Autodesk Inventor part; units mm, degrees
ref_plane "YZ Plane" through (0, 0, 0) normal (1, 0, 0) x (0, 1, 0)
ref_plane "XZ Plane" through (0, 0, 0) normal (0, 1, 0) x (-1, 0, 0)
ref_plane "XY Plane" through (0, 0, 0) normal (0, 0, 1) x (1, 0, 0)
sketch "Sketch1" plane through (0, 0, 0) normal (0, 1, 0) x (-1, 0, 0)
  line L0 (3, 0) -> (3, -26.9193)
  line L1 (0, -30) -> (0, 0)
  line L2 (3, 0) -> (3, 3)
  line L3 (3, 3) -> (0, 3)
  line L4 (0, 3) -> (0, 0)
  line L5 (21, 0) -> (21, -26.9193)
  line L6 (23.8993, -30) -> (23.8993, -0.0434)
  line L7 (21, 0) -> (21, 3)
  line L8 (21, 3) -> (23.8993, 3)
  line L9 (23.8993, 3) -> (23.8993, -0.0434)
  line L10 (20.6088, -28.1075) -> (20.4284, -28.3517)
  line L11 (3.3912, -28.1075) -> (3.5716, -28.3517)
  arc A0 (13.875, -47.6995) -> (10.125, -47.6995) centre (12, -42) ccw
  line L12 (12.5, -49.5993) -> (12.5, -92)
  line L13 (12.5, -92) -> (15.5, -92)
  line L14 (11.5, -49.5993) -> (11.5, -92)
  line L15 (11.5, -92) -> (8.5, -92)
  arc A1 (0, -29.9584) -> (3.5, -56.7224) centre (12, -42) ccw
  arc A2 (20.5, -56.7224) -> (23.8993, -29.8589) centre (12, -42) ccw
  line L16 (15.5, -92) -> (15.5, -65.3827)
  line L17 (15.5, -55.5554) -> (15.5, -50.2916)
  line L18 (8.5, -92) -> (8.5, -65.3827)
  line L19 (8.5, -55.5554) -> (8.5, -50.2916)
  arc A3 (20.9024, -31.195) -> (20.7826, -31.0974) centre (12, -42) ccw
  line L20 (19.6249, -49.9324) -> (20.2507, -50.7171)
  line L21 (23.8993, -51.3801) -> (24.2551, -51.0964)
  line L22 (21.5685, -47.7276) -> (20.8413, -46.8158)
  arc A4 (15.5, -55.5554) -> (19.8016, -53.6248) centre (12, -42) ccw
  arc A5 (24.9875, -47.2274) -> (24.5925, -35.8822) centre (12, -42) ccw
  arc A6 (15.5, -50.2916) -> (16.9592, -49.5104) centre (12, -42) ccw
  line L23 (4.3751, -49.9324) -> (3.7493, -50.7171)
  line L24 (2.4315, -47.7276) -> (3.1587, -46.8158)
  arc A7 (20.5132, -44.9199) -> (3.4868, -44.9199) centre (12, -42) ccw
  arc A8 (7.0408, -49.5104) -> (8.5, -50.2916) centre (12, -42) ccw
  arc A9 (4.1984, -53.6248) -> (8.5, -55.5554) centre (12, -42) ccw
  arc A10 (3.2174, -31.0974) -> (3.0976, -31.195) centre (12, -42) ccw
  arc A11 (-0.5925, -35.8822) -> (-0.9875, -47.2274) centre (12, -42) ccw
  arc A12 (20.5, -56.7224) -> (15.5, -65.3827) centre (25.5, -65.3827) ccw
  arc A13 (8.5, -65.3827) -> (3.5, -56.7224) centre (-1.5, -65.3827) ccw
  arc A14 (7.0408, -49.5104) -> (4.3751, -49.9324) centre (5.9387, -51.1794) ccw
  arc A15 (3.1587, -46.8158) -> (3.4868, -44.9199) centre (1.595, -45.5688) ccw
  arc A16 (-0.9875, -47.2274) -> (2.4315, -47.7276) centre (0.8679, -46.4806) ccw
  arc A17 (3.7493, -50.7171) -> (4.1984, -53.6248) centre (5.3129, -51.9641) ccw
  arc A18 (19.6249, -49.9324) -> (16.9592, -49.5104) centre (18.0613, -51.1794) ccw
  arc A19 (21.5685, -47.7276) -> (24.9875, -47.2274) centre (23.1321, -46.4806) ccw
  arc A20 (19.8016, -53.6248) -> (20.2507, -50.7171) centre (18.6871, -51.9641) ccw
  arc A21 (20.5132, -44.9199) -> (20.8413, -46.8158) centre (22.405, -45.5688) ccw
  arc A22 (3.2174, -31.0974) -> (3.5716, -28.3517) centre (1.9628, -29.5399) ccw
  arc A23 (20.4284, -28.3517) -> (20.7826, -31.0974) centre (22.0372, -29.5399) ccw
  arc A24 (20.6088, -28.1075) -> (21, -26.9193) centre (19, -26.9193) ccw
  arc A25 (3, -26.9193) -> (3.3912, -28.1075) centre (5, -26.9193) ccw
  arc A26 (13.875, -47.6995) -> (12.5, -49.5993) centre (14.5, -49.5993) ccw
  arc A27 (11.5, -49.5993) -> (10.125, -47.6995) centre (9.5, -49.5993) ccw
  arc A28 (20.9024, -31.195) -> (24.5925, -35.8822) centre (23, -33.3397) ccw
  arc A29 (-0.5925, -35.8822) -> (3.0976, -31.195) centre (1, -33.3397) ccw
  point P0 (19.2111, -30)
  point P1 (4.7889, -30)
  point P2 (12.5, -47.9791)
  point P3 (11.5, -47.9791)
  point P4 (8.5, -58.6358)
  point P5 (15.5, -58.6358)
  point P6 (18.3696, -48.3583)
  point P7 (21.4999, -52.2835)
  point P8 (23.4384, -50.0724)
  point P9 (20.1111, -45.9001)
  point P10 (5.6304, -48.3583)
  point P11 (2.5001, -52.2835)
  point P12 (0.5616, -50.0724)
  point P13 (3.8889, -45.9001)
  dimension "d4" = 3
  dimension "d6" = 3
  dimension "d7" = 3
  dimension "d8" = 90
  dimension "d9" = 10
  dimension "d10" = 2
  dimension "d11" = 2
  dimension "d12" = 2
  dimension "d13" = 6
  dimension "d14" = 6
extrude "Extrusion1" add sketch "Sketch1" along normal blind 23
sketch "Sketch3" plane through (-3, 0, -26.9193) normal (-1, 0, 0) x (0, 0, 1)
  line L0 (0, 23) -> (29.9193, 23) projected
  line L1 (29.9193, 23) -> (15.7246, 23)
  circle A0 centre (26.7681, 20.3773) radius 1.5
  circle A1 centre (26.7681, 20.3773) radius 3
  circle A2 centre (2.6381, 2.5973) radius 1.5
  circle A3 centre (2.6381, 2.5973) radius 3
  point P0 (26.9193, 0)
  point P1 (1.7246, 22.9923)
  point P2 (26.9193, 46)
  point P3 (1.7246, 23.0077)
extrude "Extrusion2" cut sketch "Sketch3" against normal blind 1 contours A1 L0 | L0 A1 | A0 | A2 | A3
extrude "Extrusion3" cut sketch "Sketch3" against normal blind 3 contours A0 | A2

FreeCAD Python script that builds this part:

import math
import FreeCAD as App
import Part
import Sketcher

doc = App.newDocument("Part")
params = doc.addObject("Spreadsheet::Sheet", "Params")
for row, (alias, value) in enumerate([
    ("sketch1_radius", "10 mm"),
    ("sketch1_radius2", "2 mm"),
    ("sketch1_radius3", "6 mm"),
    ("sketch1_radius4", "3 mm"),
    ("sketch1_width", "3 mm"),
    ("pad1_length", "23 mm"),
    ("sketch2_diameter", "6 mm"),
    ("pocket1_length", "1 mm"),
    ("sketch3_diameter", "3 mm"),
    ("pocket2_length", "3 mm"),
], start=1):
    params.set(f"A{row}", alias)
    params.set(f"B{row}", "=" + value)
    params.setAlias(f"B{row}", alias)

body = doc.addObject("PartDesign::Body", "Body")

# Sketch on XZ plane
sketch1 = body.newObject("Sketcher::SketchObject", "Sketch")
sketch1.AttachmentSupport = (doc.getObject("XZ_Plane"), [""])
sketch1.MapMode = "FlatFace"
sketch1.addGeometry(Part.LineSegment(App.Vector(-3, -26.92, 0), App.Vector(-3, 3, 0)), False)
sketch1.addGeometry(Part.LineSegment(App.Vector(-3, 3, 0), App.Vector(0, 3, 0)), False)
sketch1.addGeometry(Part.LineSegment(App.Vector(0, 3, 0), App.Vector(0, -29.96, 0)), False)
sketch1.addGeometry(Part.ArcOfCircle(Part.Circle(App.Vector(-12, -42, 0), App.Vector(0, 0, 1), 17), math.radians(-60), math.radians(45)), False)
sketch1.addGeometry(Part.ArcOfCircle(Part.Circle(App.Vector(1.5, -65.38, 0), App.Vector(0, 0, 1), 10), math.radians(120), math.radians(180)), False)
sketch1.addGeometry(Part.LineSegment(App.Vector(-8.5, -65.38, 0), App.Vector(-8.5, -92, 0)), False)
sketch1.addGeometry(Part.LineSegment(App.Vector(-8.5, -92, 0), App.Vector(-11.5, -92, 0)), False)
sketch1.addGeometry(Part.LineSegment(App.Vector(-11.5, -92, 0), App.Vector(-11.5, -49.6, 0)), False)
sketch1.addGeometry(Part.ArcOfCircle(Part.Circle(App.Vector(-9.5, -49.6, 0), App.Vector(0, 0, 1), 2), math.radians(108), math.radians(180)), False)
sketch1.addGeometry(Part.ArcOfCircle(Part.Circle(App.Vector(-12, -42, 0), App.Vector(0, 0, 1), 6), math.radians(-72), math.radians(252)), False)
sketch1.addGeometry(Part.ArcOfCircle(Part.Circle(App.Vector(-14.5, -49.6, 0), App.Vector(0, 0, 1), 2), math.radians(0), math.radians(72)), False)
sketch1.addGeometry(Part.LineSegment(App.Vector(-12.5, -49.6, 0), App.Vector(-12.5, -92, 0)), False)
sketch1.addGeometry(Part.LineSegment(App.Vector(-12.5, -92, 0), App.Vector(-15.5, -92, 0)), False)
sketch1.addGeometry(Part.LineSegment(App.Vector(-15.5, -92, 0), App.Vector(-15.5, -65.38, 0)), False)
sketch1.addGeometry(Part.ArcOfCircle(Part.Circle(App.Vector(-25.5, -65.38, 0), App.Vector(0, 0, 1), 10), math.radians(0), math.radians(60)), False)
sketch1.addGeometry(Part.ArcOfCircle(Part.Circle(App.Vector(-12, -42, 0), App.Vector(0, 0, 1), 17), math.radians(134), math.radians(240)), False)
sketch1.addGeometry(Part.LineSegment(App.Vector(-23.9, -29.86, 0), App.Vector(-23.9, 3, 0)), False)
sketch1.addGeometry(Part.LineSegment(App.Vector(-23.9, 3, 0), App.Vector(-21, 3, 0)), False)
sketch1.addGeometry(Part.LineSegment(App.Vector(-21, 3, 0), App.Vector(-21, -26.92, 0)), False)
sketch1.addGeometry(Part.ArcOfCircle(Part.Circle(App.Vector(-19, -26.92, 0), App.Vector(0, 0, 1), 2), math.radians(180), math.radians(216)), False)
sketch1.addGeometry(Part.LineSegment(App.Vector(-20.61, -28.11, 0), App.Vector(-20.43, -28.35, 0)), False)
sketch1.addGeometry(Part.ArcOfCircle(Part.Circle(App.Vector(-22.04, -29.54, 0), App.Vector(0, 0, 1), 2), math.radians(-51), math.radians(36)), False)
sketch1.addGeometry(Part.ArcOfCircle(Part.Circle(App.Vector(-12, -42, 0), App.Vector(0, 0, 1), 14), math.radians(128.85), math.radians(129.49)), False)
sketch1.addGeometry(Part.ArcOfCircle(Part.Circle(App.Vector(-23, -33.34, 0), App.Vector(0, 0, 1), 3), math.radians(-122), math.radians(46)), False)
sketch1.addGeometry(Part.ArcOfCircle(Part.Circle(App.Vector(-12, -42, 0), App.Vector(0, 0, 1), 14), math.radians(154), math.radians(202)), False)
sketch1.addGeometry(Part.ArcOfCircle(Part.Circle(App.Vector(-23.13, -46.48, 0), App.Vector(0, 0, 1), 2), math.radians(-158), math.radians(-39)), False)
sketch1.addGeometry(Part.LineSegment(App.Vector(-21.57, -47.73, 0), App.Vector(-20.84, -46.82, 0)), False)
sketch1.addGeometry(Part.ArcOfCircle(Part.Circle(App.Vector(-22.41, -45.57, 0), App.Vector(0, 0, 1), 2), math.radians(-39), math.radians(19)), False)
sketch1.addGeometry(Part.ArcOfCircle(Part.Circle(App.Vector(-12, -42, 0), App.Vector(0, 0, 1), 9), math.radians(-19), math.radians(199)), False)
sketch1.addGeometry(Part.ArcOfCircle(Part.Circle(App.Vector(-1.59, -45.57, 0), App.Vector(0, 0, 1), 2), math.radians(161), math.radians(219)), False)
sketch1.addGeometry(Part.LineSegment(App.Vector(-3.16, -46.82, 0), App.Vector(-2.43, -47.73, 0)), False)
sketch1.addGeometry(Part.ArcOfCircle(Part.Circle(App.Vector(-0.87, -46.48, 0), App.Vector(0, 0, 1), 2), math.radians(-141), math.radians(-22)), False)
sketch1.addGeometry(Part.ArcOfCircle(Part.Circle(App.Vector(-12, -42, 0), App.Vector(0, 0, 1), 14), math.radians(-22), math.radians(26)), False)
sketch1.addGeometry(Part.ArcOfCircle(Part.Circle(App.Vector(-1, -33.34, 0), App.Vector(0, 0, 1), 3), math.radians(134), math.radians(302)), False)
sketch1.addGeometry(Part.ArcOfCircle(Part.Circle(App.Vector(-12, -42, 0), App.Vector(0, 0, 1), 14), math.radians(50.51), math.radians(51.15)), False)
sketch1.addGeometry(Part.ArcOfCircle(Part.Circle(App.Vector(-1.96, -29.54, 0), App.Vector(0, 0, 1), 2), math.radians(144), math.radians(231)), False)
sketch1.addGeometry(Part.LineSegment(App.Vector(-3.57, -28.35, 0), App.Vector(-3.39, -28.11, 0)), False)
sketch1.addGeometry(Part.ArcOfCircle(Part.Circle(App.Vector(-5, -26.92, 0), App.Vector(0, 0, 1), 2), math.radians(-36), math.radians(0)), False)
sketch1.addGeometry(Part.LineSegment(App.Vector(-8.5, -50.29, 0), App.Vector(-8.5, -55.56, 0)), False)
sketch1.addGeometry(Part.ArcOfCircle(Part.Circle(App.Vector(-12, -42, 0), App.Vector(0, 0, 1), 14), math.radians(-75.53), math.radians(-56.13)), False)
sketch1.addGeometry(Part.ArcOfCircle(Part.Circle(App.Vector(-5.31, -51.96, 0), App.Vector(0, 0, 1), 2), math.radians(-56), math.radians(39)), False)
sketch1.addGeometry(Part.LineSegment(App.Vector(-3.75, -50.72, 0), App.Vector(-4.38, -49.93, 0)), False)
sketch1.addGeometry(Part.ArcOfCircle(Part.Circle(App.Vector(-5.94, -51.18, 0), App.Vector(0, 0, 1), 2), math.radians(39), math.radians(123)), False)
sketch1.addGeometry(Part.ArcOfCircle(Part.Circle(App.Vector(-12, -42, 0), App.Vector(0, 0, 1), 9.01), math.radians(-67.11), math.radians(-56.56)), False)
sketch1.addGeometry(Part.ArcOfCircle(Part.Circle(App.Vector(-12, -42, 0), App.Vector(0, 0, 1), 14), math.radians(-123.86), math.radians(-104.48)), False)
sketch1.addGeometry(Part.LineSegment(App.Vector(-15.5, -55.56, 0), App.Vector(-15.5, -50.29, 0)), False)
sketch1.addGeometry(Part.ArcOfCircle(Part.Circle(App.Vector(-12, -42.01, 0), App.Vector(0, 0, 1), 8.99), math.radians(-123.44), math.radians(-112.88)), False)
sketch1.addGeometry(Part.ArcOfCircle(Part.Circle(App.Vector(-18.06, -51.18, 0), App.Vector(0, 0, 1), 2), math.radians(57), math.radians(141)), False)
sketch1.addGeometry(Part.LineSegment(App.Vector(-19.62, -49.93, 0), App.Vector(-20.25, -50.72, 0)), False)
sketch1.addGeometry(Part.ArcOfCircle(Part.Circle(App.Vector(-18.69, -51.96, 0), App.Vector(0, 0, 1), 2), math.radians(141), math.radians(236)), False)
sketch1.addConstraint(Sketcher.Constraint("Coincident", 0, 2, 1, 1))
sketch1.addConstraint(Sketcher.Constraint("Coincident", 1, 2, 2, 1))
sketch1.addConstraint(Sketcher.Constraint("Coincident", 2, 2, 3, 2))
sketch1.addConstraint(Sketcher.Constraint("Tangent", 3, 1, 4, 1))
sketch1.addConstraint(Sketcher.Constraint("Tangent", 4, 2, 5, 1))
sketch1.addConstraint(Sketcher.Constraint("Coincident", 5, 2, 6, 1))
sketch1.addConstraint(Sketcher.Constraint("Coincident", 6, 2, 7, 1))
sketch1.addConstraint(Sketcher.Constraint("Tangent", 7, 2, 8, 2))
sketch1.addConstraint(Sketcher.Constraint("Tangent", 8, 1, 9, 1))
sketch1.addConstraint(Sketcher.Constraint("Tangent", 9, 2, 10, 2))
sketch1.addConstraint(Sketcher.Constraint("Tangent", 10, 1, 11, 1))
sketch1.addConstraint(Sketcher.Constraint("Coincident", 11, 2, 12, 1))
sketch1.addConstraint(Sketcher.Constraint("Coincident", 12, 2, 13, 1))
sketch1.addConstraint(Sketcher.Constraint("Tangent", 13, 2, 14, 1))
sketch1.addConstraint(Sketcher.Constraint("Tangent", 14, 2, 15, 2))
sketch1.addConstraint(Sketcher.Constraint("Coincident", 15, 1, 16, 1))
sketch1.addConstraint(Sketcher.Constraint("Coincident", 16, 2, 17, 1))
sketch1.addConstraint(Sketcher.Constraint("Coincident", 17, 2, 18, 1))
sketch1.addConstraint(Sketcher.Constraint("Tangent", 18, 2, 19, 1))
sketch1.addConstraint(Sketcher.Constraint("Tangent", 19, 2, 20, 1))
sketch1.addConstraint(Sketcher.Constraint("Tangent", 20, 2, 21, 2))
sketch1.addConstraint(Sketcher.Constraint("Tangent", 21, 1, 22, 1))
sketch1.addConstraint(Sketcher.Constraint("Coincident", 22, 2, 23, 2))
sketch1.addConstraint(Sketcher.Constraint("Coincident", 23, 1, 24, 1))
sketch1.addConstraint(Sketcher.Constraint("Tangent", 24, 2, 25, 1))
sketch1.addConstraint(Sketcher.Constraint("Tangent", 25, 2, 26, 1))
sketch1.addConstraint(Sketcher.Constraint("Tangent", 26, 2, 27, 1))
sketch1.addConstraint(Sketcher.Constraint("Tangent", 27, 2, 28, 2))
sketch1.addConstraint(Sketcher.Constraint("Tangent", 28, 1, 29, 1))
sketch1.addConstraint(Sketcher.Constraint("Tangent", 29, 2, 30, 1))
sketch1.addConstraint(Sketcher.Constraint("Tangent", 30, 2, 31, 1))
sketch1.addConstraint(Sketcher.Constraint("Tangent", 31, 2, 32, 1))
sketch1.addConstraint(Sketcher.Constraint("Coincident", 32, 2, 33, 2))
sketch1.addConstraint(Sketcher.Constraint("Coincident", 33, 1, 34, 1))
sketch1.addConstraint(Sketcher.Constraint("Tangent", 34, 2, 35, 2))
sketch1.addConstraint(Sketcher.Constraint("Tangent", 35, 1, 36, 1))
sketch1.addConstraint(Sketcher.Constraint("Tangent", 36, 2, 37, 1))
sketch1.addConstraint(Sketcher.Constraint("Tangent", 37, 2, 0, 1))
sketch1.addConstraint(Sketcher.Constraint("Coincident", 38, 2, 39, 1))
sketch1.addConstraint(Sketcher.Constraint("Tangent", 39, 2, 40, 1))
sketch1.addConstraint(Sketcher.Constraint("Tangent", 40, 2, 41, 1))
sketch1.addConstraint(Sketcher.Constraint("Tangent", 41, 2, 42, 1))
sketch1.addConstraint(Sketcher.Constraint("Tangent", 42, 2, 43, 2))
sketch1.addConstraint(Sketcher.Constraint("Coincident", 43, 1, 38, 1))
sketch1.addConstraint(Sketcher.Constraint("Coincident", 44, 2, 45, 1))
sketch1.addConstraint(Sketcher.Constraint("Coincident", 45, 2, 46, 2))
sketch1.addConstraint(Sketcher.Constraint("Tangent", 46, 1, 47, 1))
sketch1.addConstraint(Sketcher.Constraint("Tangent", 47, 2, 48, 1))
sketch1.addConstraint(Sketcher.Constraint("Tangent", 48, 2, 49, 1))
sketch1.addConstraint(Sketcher.Constraint("Tangent", 49, 2, 44, 1))
sketch1.addConstraint(Sketcher.Constraint("Vertical", 0))
sketch1.addConstraint(Sketcher.Constraint("Horizontal", 1))
sketch1.addConstraint(Sketcher.Constraint("Vertical", 2))
sketch1.addConstraint(Sketcher.Constraint("Vertical", 5))
sketch1.addConstraint(Sketcher.Constraint("Horizontal", 6))
sketch1.addConstraint(Sketcher.Constraint("Vertical", 7))
sketch1.addConstraint(Sketcher.Constraint("Vertical", 11))
sketch1.addConstraint(Sketcher.Constraint("Horizontal", 12))
sketch1.addConstraint(Sketcher.Constraint("Vertical", 13))
sketch1.addConstraint(Sketcher.Constraint("Vertical", 16))
sketch1.addConstraint(Sketcher.Constraint("Horizontal", 17))
sketch1.addConstraint(Sketcher.Constraint("Vertical", 18))
sketch1.addConstraint(Sketcher.Constraint("Vertical", 38))
sketch1.addConstraint(Sketcher.Constraint("Vertical", 45))
sketch1.addConstraint(Sketcher.Constraint("Coincident", 9, 3, 3, 3))
sketch1.addConstraint(Sketcher.Constraint("Coincident", 15, 3, 3, 3))
sketch1.addConstraint(Sketcher.Constraint("Coincident", 24, 3, 3, 3))
sketch1.addConstraint(Sketcher.Constraint("Coincident", 28, 3, 3, 3))
sketch1.addConstraint(Sketcher.Constraint("Coincident", 32, 3, 3, 3))
sketch1.addConstraint(Sketcher.Constraint("Equal", 8, 10))
sketch1.addConstraint(Sketcher.Constraint("Equal", 4, 14))
sketch1.addConstraint(Sketcher.Constraint("Equal", 3, 15))
sketch1.addConstraint(Sketcher.Constraint("Equal", 10, 19))
sketch1.addConstraint(Sketcher.Constraint("Equal", 19, 21))
sketch1.addConstraint(Sketcher.Constraint("Equal", 21, 25))
sketch1.addConstraint(Sketcher.Constraint("Equal", 25, 27))
sketch1.addConstraint(Sketcher.Constraint("Equal", 27, 29))
sketch1.addConstraint(Sketcher.Constraint("Equal", 29, 31))
sketch1.addConstraint(Sketcher.Constraint("Equal", 24, 32))
sketch1.addConstraint(Sketcher.Constraint("Equal", 23, 33))
sketch1.addConstraint(Sketcher.Constraint("Equal", 31, 35))
sketch1.addConstraint(Sketcher.Constraint("Equal", 35, 37))
sketch1.addConstraint(Sketcher.Constraint("Equal", 37, 40))
sketch1.addConstraint(Sketcher.Constraint("Equal", 40, 42))
sketch1.addConstraint(Sketcher.Constraint("Equal", 42, 47))
sketch1.addConstraint(Sketcher.Constraint("Equal", 47, 49))
sketch1.addConstraint(Sketcher.Constraint("PointOnObject", 1, 2, -2))
sketch1.addConstraint(Sketcher.Constraint("Parallel", 30, 41))
sketch1.addConstraint(Sketcher.Constraint("Parallel", 26, 48))
sketch1.addConstraint(Sketcher.Constraint("Horizontal", 8, 3, 10, 3))
sketch1.addConstraint(Sketcher.Constraint("Horizontal", 4, 3, 14, 3))
sketch1.addConstraint(Sketcher.Constraint("Horizontal", 27, 3, 29, 3))
sketch1.addConstraint(Sketcher.Constraint("Horizontal", 25, 3, 31, 3))
sketch1.addConstraint(Sketcher.Constraint("Horizontal", 23, 3, 33, 3))
sketch1.addConstraint(Sketcher.Constraint("Horizontal", 21, 3, 35, 3))
sketch1.addConstraint(Sketcher.Constraint("Horizontal", 19, 3, 37, 3))
sketch1.addConstraint(Sketcher.Constraint("Horizontal", 42, 3, 47, 3))
sketch1.addConstraint(Sketcher.Constraint("Horizontal", 40, 3, 49, 3))
sketch1.addConstraint(Sketcher.Constraint("Horizontal", 6, 2, 11, 2))
sketch1.addConstraint(Sketcher.Constraint("Horizontal", 1, 2, 16, 2))
sketch1.addConstraint(Sketcher.Constraint("Horizontal", 23, 1, 32, 2))
sketch1.addConstraint(Sketcher.Constraint("Horizontal", 22, 2, 33, 1))
sketch1.addConstraint(Sketcher.Constraint("Horizontal", 21, 1, 34, 2))
sketch1.addConstraint(Sketcher.Constraint("Horizontal", 20, 2, 35, 1))
sketch1.addConstraint(Sketcher.Constraint("Horizontal", 38, 2, 44, 2))
sketch1.addConstraint(Sketcher.Constraint("Horizontal", 43, 1, 45, 2))
sketch1.addConstraint(Sketcher.Constraint("Horizontal", 42, 2, 46, 1))
sketch1.addConstraint(Sketcher.Constraint("Vertical", 22, 3, 34, 3))
sketch1.addConstraint(Sketcher.Constraint("Vertical", 5, 2, 38, 2))
sketch1.addConstraint(Sketcher.Constraint("Vertical", 13, 2, 44, 2))
sketch1.addConstraint(Sketcher.Constraint("Equal", 1, 6))
sketch1.addConstraint(Sketcher.Constraint("Radius", 4, 10.0))
sketch1.addConstraint(Sketcher.Constraint("Radius", 8, 2.0))
sketch1.addConstraint(Sketcher.Constraint("Radius", 9, 6.0))
sketch1.addConstraint(Sketcher.Constraint("Radius", 23, 3.0))
sketch1.addConstraint(Sketcher.Constraint("DistanceX", 1, 1, 1, 2, 3.0))
sketch1.addConstraint(Sketcher.Constraint("DistanceY", -1, 1, 0, 2, 3.0))
sketch1.addConstraint(Sketcher.Constraint("Radius", 3, 17.0))
sketch1.addConstraint(Sketcher.Constraint("Radius", 24, 14.0))
sketch1.addConstraint(Sketcher.Constraint("Radius", 28, 9.0))
sketch1.addConstraint(Sketcher.Constraint("DistanceX", 3, 3, -1, 1, 12.0))
sketch1.addConstraint(Sketcher.Constraint("DistanceY", 3, 3, -1, 1, 42.0))
sketch1.addConstraint(Sketcher.Constraint("DistanceX", 23, 3, -1, 1, 23.0))
sketch1.addConstraint(Sketcher.Constraint("DistanceY", 5, 2, -1, 1, 92.0))
sketch1.addConstraint(Sketcher.Constraint("DistanceX", -1, 1, 4, 3, 1.5))
sketch1.addConstraint(Sketcher.Constraint("Radius", 22, 13.9986))
sketch1.addConstraint(Sketcher.Constraint("Radius", 34, 14.0015))
sketch1.addConstraint(Sketcher.Constraint("Radius", 39, 13.9974))
sketch1.addConstraint(Sketcher.Constraint("Radius", 43, 9.0056))
sketch1.addConstraint(Sketcher.Constraint("Radius", 44, 14.0025))
sketch1.addConstraint(Sketcher.Constraint("Radius", 46, 8.9944))
sketch1.addConstraint(Sketcher.Constraint("DistanceY", 16, 1, 16, 2, 32.859))
sketch1.addConstraint(Sketcher.Constraint("DistanceY", 21, 3, -1, 1, 29.54))
sketch1.addConstraint(Sketcher.Constraint("DistanceY", 27, 2, -1, 1, 44.92))
sketch1.addConstraint(Sketcher.Constraint("DistanceY", 0, 1, 0, 2, 29.9193))
sketch1.addConstraint(Sketcher.Constraint("DistanceY", 38, 2, 38, 1, 5.2638))
sketch1.addConstraint(Sketcher.Constraint("DistanceX", 25, 3, -1, 1, 23.132))
sketch1.addConstraint(Sketcher.Constraint("DistanceX", 40, 3, -1, 1, 5.313))
sketch1.addConstraint(Sketcher.Constraint("DistanceY", 40, 3, -1, 1, 51.964))
sketch1.addConstraint(Sketcher.Constraint("DistanceX", 43, 3, -1, 1, 12.003))
sketch1.addConstraint(Sketcher.Constraint("DistanceY", 46, 3, -1, 1, 42.005))
sketch1.addConstraint(Sketcher.Constraint("DistanceY", 22, 2, -1, 1, 31.195))
sketch1.addConstraint(Sketcher.Constraint("DistanceY", 23, 1, -1, 1, 35.882))
sketch1.setExpression("Constraints[111]", "Params.sketch1_radius")
sketch1.setExpression("Constraints[112]", "Params.sketch1_radius2")
sketch1.setExpression("Constraints[113]", "Params.sketch1_radius3")
sketch1.setExpression("Constraints[114]", "Params.sketch1_radius4")
sketch1.setExpression("Constraints[115]", "Params.sketch1_width")
pad1 = body.newObject("PartDesign::Pad", "Pad")
pad1.Profile = sketch1
pad1.setExpression("Length", "Params.pad1_length")
pad1.Reversed = True

# Sketch on YZ plane
sketch2 = body.newObject("Sketcher::SketchObject", "Sketch001")
sketch2.AttachmentSupport = (doc.getObject("YZ_Plane"), [""])
sketch2.MapMode = "FlatFace"
sketch2.AttachmentOffset = App.Placement(App.Vector(0, 0, -3), App.Rotation())
sketch2.addGeometry(Part.Circle(App.Vector(20.4, -0.2, 0), App.Vector(0, 0, 1), 3), False)
sketch2.addGeometry(Part.Circle(App.Vector(2.6, -24.3, 0), App.Vector(0, 0, 1), 3), False)
sketch2.addConstraint(Sketcher.Constraint("Equal", 0, 1))
sketch2.addConstraint(Sketcher.Constraint("Diameter", 0, 6.0))
sketch2.addConstraint(Sketcher.Constraint("DistanceX", 1, 3, 0, 3, 17.78))
sketch2.addConstraint(Sketcher.Constraint("DistanceY", 1, 3, 0, 3, 24.13))
sketch2.addConstraint(Sketcher.Constraint("DistanceX", -1, 1, 0, 3, 20.3773))
sketch2.addConstraint(Sketcher.Constraint("DistanceY", 0, 3, -1, 1, 0.1512))
sketch2.setExpression("Constraints[1]", "Params.sketch2_diameter")
pocket1 = body.newObject("PartDesign::Pocket", "Pocket")
pocket1.Profile = sketch2
pocket1.setExpression("Length", "Params.pocket1_length")
pocket1.Reversed = True

# Sketch on YZ plane
sketch3 = body.newObject("Sketcher::SketchObject", "Sketch002")
sketch3.AttachmentSupport = (doc.getObject("YZ_Plane"), [""])
sketch3.MapMode = "FlatFace"
sketch3.AttachmentOffset = App.Placement(App.Vector(0, 0, -3), App.Rotation())
sketch3.addGeometry(Part.Circle(App.Vector(20.4, -0.2, 0), App.Vector(0, 0, 1), 1.5), False)
sketch3.addGeometry(Part.Circle(App.Vector(2.6, -24.3, 0), App.Vector(0, 0, 1), 1.5), False)
sketch3.addConstraint(Sketcher.Constraint("Equal", 0, 1))
sketch3.addConstraint(Sketcher.Constraint("Diameter", 0, 3.0))
sketch3.addConstraint(Sketcher.Constraint("DistanceX", 1, 3, 0, 3, 17.78))
sketch3.addConstraint(Sketcher.Constraint("DistanceY", 1, 3, 0, 3, 24.13))
sketch3.addConstraint(Sketcher.Constraint("DistanceX", -1, 1, 0, 3, 20.3773))
sketch3.addConstraint(Sketcher.Constraint("DistanceY", 0, 3, -1, 1, 0.1512))
sketch3.setExpression("Constraints[1]", "Params.sketch3_diameter")
pocket2 = body.newObject("PartDesign::Pocket", "Pocket001")
pocket2.Profile = sketch3
pocket2.setExpression("Length", "Params.pocket2_length")
pocket2.Reversed = True

doc.recompute()
